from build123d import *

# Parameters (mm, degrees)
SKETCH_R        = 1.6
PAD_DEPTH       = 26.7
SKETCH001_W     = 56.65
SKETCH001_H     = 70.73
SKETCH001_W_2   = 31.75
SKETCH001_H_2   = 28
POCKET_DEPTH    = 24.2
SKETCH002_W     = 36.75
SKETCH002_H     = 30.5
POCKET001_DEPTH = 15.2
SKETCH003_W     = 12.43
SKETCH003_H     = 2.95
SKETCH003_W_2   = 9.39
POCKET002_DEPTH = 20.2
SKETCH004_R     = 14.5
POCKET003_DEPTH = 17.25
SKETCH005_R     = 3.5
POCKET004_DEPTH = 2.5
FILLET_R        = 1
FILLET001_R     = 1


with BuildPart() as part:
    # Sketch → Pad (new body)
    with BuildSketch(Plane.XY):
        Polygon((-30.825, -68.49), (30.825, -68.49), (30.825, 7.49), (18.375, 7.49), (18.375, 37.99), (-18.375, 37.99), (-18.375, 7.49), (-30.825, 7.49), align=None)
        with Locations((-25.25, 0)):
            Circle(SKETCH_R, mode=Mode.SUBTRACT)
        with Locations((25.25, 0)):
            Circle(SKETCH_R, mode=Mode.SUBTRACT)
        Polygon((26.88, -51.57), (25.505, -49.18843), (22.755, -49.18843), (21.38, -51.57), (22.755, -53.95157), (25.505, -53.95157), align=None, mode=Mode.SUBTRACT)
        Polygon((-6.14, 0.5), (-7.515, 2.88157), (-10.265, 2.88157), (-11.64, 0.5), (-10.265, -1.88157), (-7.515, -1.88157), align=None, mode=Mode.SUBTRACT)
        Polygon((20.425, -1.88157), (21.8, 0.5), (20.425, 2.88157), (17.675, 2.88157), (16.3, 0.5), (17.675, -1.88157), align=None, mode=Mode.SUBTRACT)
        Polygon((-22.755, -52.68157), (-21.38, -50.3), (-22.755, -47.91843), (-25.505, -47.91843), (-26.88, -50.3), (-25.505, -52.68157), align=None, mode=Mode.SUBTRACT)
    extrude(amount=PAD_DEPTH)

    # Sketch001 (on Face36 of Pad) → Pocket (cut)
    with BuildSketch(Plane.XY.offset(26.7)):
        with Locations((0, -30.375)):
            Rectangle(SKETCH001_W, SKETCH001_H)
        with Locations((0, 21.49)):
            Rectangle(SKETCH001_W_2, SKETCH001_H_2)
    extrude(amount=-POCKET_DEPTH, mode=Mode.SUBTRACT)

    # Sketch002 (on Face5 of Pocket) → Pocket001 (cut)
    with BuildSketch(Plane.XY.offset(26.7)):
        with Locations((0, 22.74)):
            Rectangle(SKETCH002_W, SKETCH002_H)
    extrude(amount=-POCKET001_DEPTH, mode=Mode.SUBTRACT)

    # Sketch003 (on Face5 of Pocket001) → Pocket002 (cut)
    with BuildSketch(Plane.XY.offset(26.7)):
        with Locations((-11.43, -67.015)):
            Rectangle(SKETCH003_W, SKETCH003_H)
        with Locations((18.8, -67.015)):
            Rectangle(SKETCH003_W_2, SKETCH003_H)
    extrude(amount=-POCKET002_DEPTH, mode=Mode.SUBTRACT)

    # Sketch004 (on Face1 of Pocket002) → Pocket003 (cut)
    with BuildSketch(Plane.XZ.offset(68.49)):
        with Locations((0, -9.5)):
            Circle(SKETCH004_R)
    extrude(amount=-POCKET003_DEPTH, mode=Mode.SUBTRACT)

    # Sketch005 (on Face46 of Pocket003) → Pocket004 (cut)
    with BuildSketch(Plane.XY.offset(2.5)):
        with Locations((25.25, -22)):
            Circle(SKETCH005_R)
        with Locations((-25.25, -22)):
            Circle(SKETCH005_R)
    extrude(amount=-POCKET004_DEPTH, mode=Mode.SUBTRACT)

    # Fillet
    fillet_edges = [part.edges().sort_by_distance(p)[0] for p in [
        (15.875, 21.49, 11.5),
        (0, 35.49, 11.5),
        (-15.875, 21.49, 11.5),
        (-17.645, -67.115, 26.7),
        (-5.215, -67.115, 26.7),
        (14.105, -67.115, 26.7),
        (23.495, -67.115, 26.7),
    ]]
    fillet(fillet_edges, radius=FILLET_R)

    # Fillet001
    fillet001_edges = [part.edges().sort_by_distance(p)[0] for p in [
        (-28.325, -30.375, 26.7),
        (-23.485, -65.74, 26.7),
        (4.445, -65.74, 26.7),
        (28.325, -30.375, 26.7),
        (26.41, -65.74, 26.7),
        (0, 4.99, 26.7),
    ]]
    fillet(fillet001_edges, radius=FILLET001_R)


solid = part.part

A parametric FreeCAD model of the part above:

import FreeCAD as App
import Part
import Sketcher

V = App.Vector
Q = App.Units.Quantity


def edges_at(feature, points):
    """Names of the edges that pass closest to the given points."""
    edges = feature.Shape.Edges
    near = lambda p: min(range(len(edges)), key=lambda i: edges[i].distToShape(Part.Vertex(*p))[0])
    return sorted({f"Edge{near(p) + 1}" for p in points})

doc = App.newDocument("Part")
params = doc.addObject("Spreadsheet::Sheet", "Params")
for row, (alias, value) in enumerate([
    ("sketch1_diameter", "3.2 mm"),
    ("sketch1_height", "30.5 mm"),
    ("sketch1_width", "61.65 mm"),
    ("sketch1_width2", "12.45 mm"),
    ("sketch1_width3", "2.75 mm"),
    ("pad1_length", "26.7 mm"),
    ("sketch2_height", "28 mm"),
    ("sketch2_width", "56.65 mm"),
    ("sketch2_width2", "31.75 mm"),
    ("sketch2_height2", "70.73 mm"),
    ("pocket1_length", "24.2 mm"),
    ("sketch3_height", "30.5 mm"),
    ("sketch3_width", "36.75 mm"),
    ("pocket2_length", "15.2 mm"),
    ("sketch4_width", "12.43 mm"),
    ("sketch4_width2", "9.39 mm"),
    ("sketch4_height", "2.95 mm"),
    ("pocket3_length", "20.2 mm"),
    ("sketch5_diameter", "29 mm"),
    ("pocket4_length", "17.25 mm"),
    ("sketch6_diameter", "7 mm"),
    ("pocket5_length", "2.5 mm"),
    ("fillet_radius", "1 mm"),
    ("fillet2_radius", "1 mm"),
], start=1):
    params.set(f"A{row}", alias)
    params.set(f"B{row}", "=" + value)
    params.setAlias(f"B{row}", alias)

body = doc.addObject("PartDesign::Body", "Body")

# Sketch on XY plane
sketch1 = body.newObject("Sketcher::SketchObject", "Sketch")
sketch1.AttachmentSupport = (doc.getObject("XY_Plane"), [""])
sketch1.MapMode = "FlatFace"
sketch1.addGeometry(Part.LineSegment(V(-30.8, -68.5, 0), V(30.8, -68.5, 0)), False)
sketch1.addGeometry(Part.LineSegment(V(30.8, -68.5, 0), V(30.8, 7.5, 0)), False)
sketch1.addGeometry(Part.LineSegment(V(30.8, 7.5, 0), V(18.4, 7.5, 0)), False)
sketch1.addGeometry(Part.LineSegment(V(18.4, 7.5, 0), V(18.4, 38, 0)), False)
sketch1.addGeometry(Part.LineSegment(V(18.4, 38, 0), V(-18.4, 38, 0)), False)
sketch1.addGeometry(Part.LineSegment(V(-18.4, 38, 0), V(-18.4, 7.5, 0)), False)
sketch1.addGeometry(Part.LineSegment(V(-18.4, 7.5, 0), V(-30.8, 7.5, 0)), False)
sketch1.addGeometry(Part.LineSegment(V(-30.8, 7.5, 0), V(-30.8, -68.5, 0)), False)
sketch1.addGeometry(Part.LineSegment(V(-21.4, -50.3, 0), V(-22.8, -52.7, 0)), False)
sketch1.addGeometry(Part.LineSegment(V(-22.8, -52.7, 0), V(-25.5, -52.7, 0)), False)
sketch1.addGeometry(Part.LineSegment(V(-25.5, -52.7, 0), V(-26.9, -50.3, 0)), False)
sketch1.addGeometry(Part.LineSegment(V(-26.9, -50.3, 0), V(-25.5, -47.9, 0)), False)
sketch1.addGeometry(Part.LineSegment(V(-25.5, -47.9, 0), V(-22.8, -47.9, 0)), False)
sketch1.addGeometry(Part.LineSegment(V(-22.8, -47.9, 0), V(-21.4, -50.3, 0)), False)
sketch1.addGeometry(Part.LineSegment(V(25.5, -49.2, 0), V(26.9, -51.6, 0)), False)
sketch1.addGeometry(Part.LineSegment(V(26.9, -51.6, 0), V(25.5, -54, 0)), False)
sketch1.addGeometry(Part.LineSegment(V(25.5, -54, 0), V(22.8, -54, 0)), False)
sketch1.addGeometry(Part.LineSegment(V(22.8, -54, 0), V(21.4, -51.6, 0)), False)
sketch1.addGeometry(Part.LineSegment(V(21.4, -51.6, 0), V(22.8, -49.2, 0)), False)
sketch1.addGeometry(Part.LineSegment(V(22.8, -49.2, 0), V(25.5, -49.2, 0)), False)
sketch1.addGeometry(Part.Circle(V(-25.2, 0, 0), V(0, 0, 1), 1.6), False)
sketch1.addGeometry(Part.LineSegment(V(-7.5, 2.9, 0), V(-6.1, 0.5, 0)), False)
sketch1.addGeometry(Part.LineSegment(V(-6.1, 0.5, 0), V(-7.5, -1.9, 0)), False)
sketch1.addGeometry(Part.LineSegment(V(-7.5, -1.9, 0), V(-10.3, -1.9, 0)), False)
sketch1.addGeometry(Part.LineSegment(V(-10.3, -1.9, 0), V(-11.6, 0.5, 0)), False)
sketch1.addGeometry(Part.LineSegment(V(-11.6, 0.5, 0), V(-10.3, 2.9, 0)), False)
sketch1.addGeometry(Part.LineSegment(V(-10.3, 2.9, 0), V(-7.5, 2.9, 0)), False)
sketch1.addGeometry(Part.LineSegment(V(21.8, 0.5, 0), V(20.4, -1.9, 0)), False)
sketch1.addGeometry(Part.LineSegment(V(20.4, -1.9, 0), V(17.7, -1.9, 0)), False)
sketch1.addGeometry(Part.LineSegment(V(17.7, -1.9, 0), V(16.3, 0.5, 0)), False)
sketch1.addGeometry(Part.LineSegment(V(16.3, 0.5, 0), V(17.7, 2.9, 0)), False)
sketch1.addGeometry(Part.LineSegment(V(17.7, 2.9, 0), V(20.4, 2.9, 0)), False)
sketch1.addGeometry(Part.LineSegment(V(20.4, 2.9, 0), V(21.8, 0.5, 0)), False)
sketch1.addGeometry(Part.Circle(V(25.2, 0, 0), V(0, 0, 1), 1.6), False)
sketch1.addConstraint(Sketcher.Constraint("Coincident", 0, 2, 1, 1))
sketch1.addConstraint(Sketcher.Constraint("Coincident", 1, 2, 2, 1))
sketch1.addConstraint(Sketcher.Constraint("Coincident", 2, 2, 3, 1))
sketch1.addConstraint(Sketcher.Constraint("Coincident", 3, 2, 4, 1))
sketch1.addConstraint(Sketcher.Constraint("Coincident", 4, 2, 5, 1))
sketch1.addConstraint(Sketcher.Constraint("Coincident", 5, 2, 6, 1))
sketch1.addConstraint(Sketcher.Constraint("Coincident", 6, 2, 7, 1))
sketch1.addConstraint(Sketcher.Constraint("Coincident", 7, 2, 0, 1))
sketch1.addConstraint(Sketcher.Constraint("Coincident", 8, 2, 9, 1))
sketch1.addConstraint(Sketcher.Constraint("Coincident", 9, 2, 10, 1))
sketch1.addConstraint(Sketcher.Constraint("Coincident", 10, 2, 11, 1))
sketch1.addConstraint(Sketcher.Constraint("Coincident", 11, 2, 12, 1))
sketch1.addConstraint(Sketcher.Constraint("Coincident", 12, 2, 13, 1))
sketch1.addConstraint(Sketcher.Constraint("Coincident", 13, 2, 8, 1))
sketch1.addConstraint(Sketcher.Constraint("Coincident", 14, 2, 15, 1))
sketch1.addConstraint(Sketcher.Constraint("Coincident", 15, 2, 16, 1))
sketch1.addConstraint(Sketcher.Constraint("Coincident", 16, 2, 17, 1))
sketch1.addConstraint(Sketcher.Constraint("Coincident", 17, 2, 18, 1))
sketch1.addConstraint(Sketcher.Constraint("Coincident", 18, 2, 19, 1))
sketch1.addConstraint(Sketcher.Constraint("Coincident", 19, 2, 14, 1))
sketch1.addConstraint(Sketcher.Constraint("Coincident", 21, 2, 22, 1))
sketch1.addConstraint(Sketcher.Constraint("Coincident", 22, 2, 23, 1))
sketch1.addConstraint(Sketcher.Constraint("Coincident", 23, 2, 24, 1))
sketch1.addConstraint(Sketcher.Constraint("Coincident", 24, 2, 25, 1))
sketch1.addConstraint(Sketcher.Constraint("Coincident", 25, 2, 26, 1))
sketch1.addConstraint(Sketcher.Constraint("Coincident", 26, 2, 21, 1))
sketch1.addConstraint(Sketcher.Constraint("Coincident", 27, 2, 28, 1))
sketch1.addConstraint(Sketcher.Constraint("Coincident", 28, 2, 29, 1))
sketch1.addConstraint(Sketcher.Constraint("Coincident", 29, 2, 30, 1))
sketch1.addConstraint(Sketcher.Constraint("Coincident", 30, 2, 31, 1))
sketch1.addConstraint(Sketcher.Constraint("Coincident", 31, 2, 32, 1))
sketch1.addConstraint(Sketcher.Constraint("Coincident", 32, 2, 27, 1))
sketch1.addConstraint(Sketcher.Constraint("Horizontal", 0))
sketch1.addConstraint(Sketcher.Constraint("Vertical", 1))
sketch1.addConstraint(Sketcher.Constraint("Horizontal", 2))
sketch1.addConstraint(Sketcher.Constraint("Vertical", 3))
sketch1.addConstraint(Sketcher.Constraint("Horizontal", 4))
sketch1.addConstraint(Sketcher.Constraint("Vertical", 5))
sketch1.addConstraint(Sketcher.Constraint("Horizontal", 6))
sketch1.addConstraint(Sketcher.Constraint("Vertical", 7))
sketch1.addConstraint(Sketcher.Constraint("Horizontal", 9))
sketch1.addConstraint(Sketcher.Constraint("Horizontal", 12))
sketch1.addConstraint(Sketcher.Constraint("Horizontal", 16))
sketch1.addConstraint(Sketcher.Constraint("Horizontal", 19))
sketch1.addConstraint(Sketcher.Constraint("Horizontal", 23))
sketch1.addConstraint(Sketcher.Constraint("Horizontal", 26))
sketch1.addConstraint(Sketcher.Constraint("Horizontal", 28))
sketch1.addConstraint(Sketcher.Constraint("Horizontal", 31))
sketch1.addConstraint(Sketcher.Constraint("Equal", 20, 33))
sketch1.addConstraint(Sketcher.Constraint("Symmetric", 20, 3, 33, 3, -1, 1))
sketch1.addConstraint(Sketcher.Constraint("Symmetric", 2, 2, 5, 2, -2))
sketch1.addConstraint(Sketcher.Constraint("PointOnObject", 20, 3, -1))
sketch1.addConstraint(Sketcher.Constraint("Parallel", 8, 11))
sketch1.addConstraint(Sketcher.Constraint("Parallel", 10, 13))
sketch1.addConstraint(Sketcher.Constraint("Parallel", 13, 14))
sketch1.addConstraint(Sketcher.Constraint("Parallel", 11, 15))
sketch1.addConstraint(Sketcher.Constraint("Parallel", 14, 17))
sketch1.addConstraint(Sketcher.Constraint("Parallel", 15, 18))
sketch1.addConstraint(Sketcher.Constraint("Parallel", 17, 21))
sketch1.addConstraint(Sketcher.Constraint("Parallel", 18, 22))
sketch1.addConstraint(Sketcher.Constraint("Parallel", 21, 24))
sketch1.addConstraint(Sketcher.Constraint("Parallel", 22, 25))
sketch1.addConstraint(Sketcher.Constraint("Parallel", 25, 27))
sketch1.addConstraint(Sketcher.Constraint("Parallel", 24, 29))
sketch1.addConstraint(Sketcher.Constraint("Parallel", 27, 30))
sketch1.addConstraint(Sketcher.Constraint("Parallel", 29, 32))
sketch1.addConstraint(Sketcher.Constraint("Horizontal", 10, 2, 13, 2))
sketch1.addConstraint(Sketcher.Constraint("Horizontal", 14, 2, 17, 2))
sketch1.addConstraint(Sketcher.Constraint("Horizontal", 21, 2, 24, 2))
sketch1.addConstraint(Sketcher.Constraint("Horizontal", 23, 2, 27, 2))
sketch1.addConstraint(Sketcher.Constraint("Horizontal", 24, 2, 29, 2))
sketch1.addConstraint(Sketcher.Constraint("Horizontal", 26, 2, 30, 2))
sketch1.addConstraint(Sketcher.Constraint("Horizontal", 29, 2, 32, 2))
sketch1.addConstraint(Sketcher.Constraint("Vertical", 9, 2, 11, 2))
sketch1.addConstraint(Sketcher.Constraint("Vertical", 8, 2, 12, 2))
sketch1.addConstraint(Sketcher.Constraint("Vertical", 16, 2, 18, 2))
sketch1.addConstraint(Sketcher.Constraint("Vertical", 23, 2, 25, 2))
sketch1.addConstraint(Sketcher.Constraint("Equal", 2, 6))
sketch1.addConstraint(Sketcher.Constraint("Equal", 12, 16))
sketch1.addConstraint(Sketcher.Constraint("Equal", 19, 23))
sketch1.addConstraint(Sketcher.Constraint("Equal", 26, 28))
sketch1.addConstraint(Sketcher.Constraint("Equal", 13, 14))
sketch1.addConstraint(Sketcher.Constraint("Equal", 18, 21))
sketch1.addConstraint(Sketcher.Constraint("Diameter", 20, 3.2))
sketch1.addConstraint(Sketcher.Constraint("Angle", 8, Q("-119.999999 deg")))
sketch1.addConstraint(Sketcher.Constraint("DistanceY", 3, 1, 3, 2, 30.5))
sketch1.addConstraint(Sketcher.Constraint("DistanceX", 0, 1, 0, 2, 61.65))
sketch1.addConstraint(Sketcher.Constraint("DistanceX", 2, 2, 2, 1, 12.45))
sketch1.addConstraint(Sketcher.Constraint("DistanceX", 9, 2, 9, 1, 2.75))
sketch1.addConstraint(Sketcher.Constraint("DistanceY", 1, 1, 1, 2, 75.98))
sketch1.addConstraint(Sketcher.Constraint("DistanceY", 10, 2, -1, 1, 50.3))
sketch1.addConstraint(Sketcher.Constraint("DistanceY", -1, 1, 21, 2, 0.5))
sketch1.addConstraint(Sketcher.Constraint("DistanceX", -1, 1, 29, 2, 16.3))
sketch1.addConstraint(Sketcher.Constraint("DistanceX", -1, 1, 32, 2, 21.8))
sketch1.addConstraint(Sketcher.Constraint("DistanceX", 20, 3, 33, 3, 50.5))
sketch1.addConstraint(Sketcher.Constraint("DistanceY", 0, 2, -1, 1, 68.49))
sketch1.addConstraint(Sketcher.Constraint("DistanceX", 10, 2, -1, 1, 26.88))
sketch1.addConstraint(Sketcher.Constraint("DistanceX", -1, 1, 14, 2, 26.88))
sketch1.addConstraint(Sketcher.Constraint("DistanceY", 14, 2, -1, 1, 51.57))
sketch1.addConstraint(Sketcher.Constraint("DistanceX", 21, 2, -1, 1, 6.14))
sketch1.setExpression("Constraints[83]", "Params.sketch1_diameter")
sketch1.setExpression("Constraints[85]", "Params.sketch1_height")
sketch1.setExpression("Constraints[86]", "Params.sketch1_width")
sketch1.setExpression("Constraints[87]", "Params.sketch1_width2")
sketch1.setExpression("Constraints[88]", "Params.sketch1_width3")
pad1 = body.newObject("PartDesign::Pad", "Pad")
pad1.Profile = sketch1
pad1.setExpression("Length", "Params.pad1_length")

# Sketch on XY plane
sketch2 = body.newObject("Sketcher::SketchObject", "Sketch001")
sketch2.AttachmentSupport = (doc.getObject("XY_Plane"), [""])
sketch2.MapMode = "FlatFace"
sketch2.AttachmentOffset = App.Placement(V(0, 0, 26.7), App.Rotation())
sketch2.addGeometry(Part.LineSegment(V(-28, 5, 0), V(-28, -66, 0)), False)
sketch2.addGeometry(Part.LineSegment(V(-28, -66, 0), V(28, -66, 0)), False)
sketch2.addGeometry(Part.LineSegment(V(28, -66, 0), V(28, 5, 0)), False)
sketch2.addGeometry(Part.LineSegment(V(28, 5, 0), V(-28, 5, 0)), False)
sketch2.addGeometry(Part.LineSegment(V(-16, 35, 0), V(-16, 7, 0)), False)
sketch2.addGeometry(Part.LineSegment(V(-16, 7, 0), V(16, 7, 0)), False)
sketch2.addGeometry(Part.LineSegment(V(16, 7, 0), V(16, 35, 0)), False)
sketch2.addGeometry(Part.LineSegment(V(16, 35, 0), V(-16, 35, 0)), False)
sketch2.addConstraint(Sketcher.Constraint("Coincident", 0, 2, 1, 1))
sketch2.addConstraint(Sketcher.Constraint("Coincident", 1, 2, 2, 1))
sketch2.addConstraint(Sketcher.Constraint("Coincident", 2, 2, 3, 1))
sketch2.addConstraint(Sketcher.Constraint("Coincident", 3, 2, 0, 1))
sketch2.addConstraint(Sketcher.Constraint("Coincident", 4, 2, 5, 1))
sketch2.addConstraint(Sketcher.Constraint("Coincident", 5, 2, 6, 1))
sketch2.addConstraint(Sketcher.Constraint("Coincident", 6, 2, 7, 1))
sketch2.addConstraint(Sketcher.Constraint("Coincident", 7, 2, 4, 1))
sketch2.addConstraint(Sketcher.Constraint("Vertical", 0))
sketch2.addConstraint(Sketcher.Constraint("Horizontal", 1))
sketch2.addConstraint(Sketcher.Constraint("Vertical", 2))
sketch2.addConstraint(Sketcher.Constraint("Horizontal", 3))
sketch2.addConstraint(Sketcher.Constraint("Vertical", 4))
sketch2.addConstraint(Sketcher.Constraint("Horizontal", 5))
sketch2.addConstraint(Sketcher.Constraint("Vertical", 6))
sketch2.addConstraint(Sketcher.Constraint("Horizontal", 7))
sketch2.addConstraint(Sketcher.Constraint("DistanceY", 4, 2, 4, 1, 28.0))
sketch2.addConstraint(Sketcher.Constraint("DistanceX", 1, 1, 1, 2, 56.65))
sketch2.addConstraint(Sketcher.Constraint("DistanceX", 5, 1, 5, 2, 31.75))
sketch2.addConstraint(Sketcher.Constraint("DistanceY", 0, 2, 0, 1, 70.73))
sketch2.addConstraint(Sketcher.Constraint("DistanceY", 3, 2, 4, 2, 2.5))
sketch2.addConstraint(Sketcher.Constraint("DistanceX", 4, 2, 2, 2, 44.2))
sketch2.addConstraint(Sketcher.Constraint("DistanceY", 0, 2, -1, 1, 65.74))
sketch2.addConstraint(Sketcher.Constraint("DistanceX", 0, 2, -1, 1, 28.325))
sketch2.setExpression("Constraints[16]", "Params.sketch2_height")
sketch2.setExpression("Constraints[17]", "Params.sketch2_width")
sketch2.setExpression("Constraints[18]", "Params.sketch2_width2")
sketch2.setExpression("Constraints[19]", "Params.sketch2_height2")
pocket1 = body.newObject("PartDesign::Pocket", "Pocket")
pocket1.Profile = sketch2
pocket1.setExpression("Length", "Params.pocket1_length")

# Sketch on XY plane
sketch3 = body.newObject("Sketcher::SketchObject", "Sketch002")
sketch3.AttachmentSupport = (doc.getObject("XY_Plane"), [""])
sketch3.MapMode = "FlatFace"
sketch3.AttachmentOffset = App.Placement(V(0, 0, 26.7), App.Rotation())
sketch3.addGeometry(Part.LineSegment(V(-18, 38, 0), V(-18, 7, 0)), False)
sketch3.addGeometry(Part.LineSegment(V(-18, 7, 0), V(18, 7, 0)), False)
sketch3.addGeometry(Part.LineSegment(V(18, 7, 0), V(18, 38, 0)), False)
sketch3.addGeometry(Part.LineSegment(V(18, 38, 0), V(-18, 38, 0)), False)
sketch3.addConstraint(Sketcher.Constraint("Coincident", 0, 2, 1, 1))
sketch3.addConstraint(Sketcher.Constraint("Coincident", 1, 2, 2, 1))
sketch3.addConstraint(Sketcher.Constraint("Coincident", 2, 2, 3, 1))
sketch3.addConstraint(Sketcher.Constraint("Coincident", 3, 2, 0, 1))
sketch3.addConstraint(Sketcher.Constraint("Vertical", 0))
sketch3.addConstraint(Sketcher.Constraint("Horizontal", 1))
sketch3.addConstraint(Sketcher.Constraint("Vertical", 2))
sketch3.addConstraint(Sketcher.Constraint("Horizontal", 3))
sketch3.addConstraint(Sketcher.Constraint("DistanceY", 0, 2, 0, 1, 30.5))
sketch3.addConstraint(Sketcher.Constraint("DistanceX", 1, 1, 1, 2, 36.75))
sketch3.addConstraint(Sketcher.Constraint("DistanceY", -1, 1, 0, 2, 7.49))
sketch3.addConstraint(Sketcher.Constraint("DistanceX", 0, 2, -1, 1, 18.375))
sketch3.setExpression("Constraints[8]", "Params.sketch3_height")
sketch3.setExpression("Constraints[9]", "Params.sketch3_width")
pocket2 = body.newObject("PartDesign::Pocket", "Pocket001")
pocket2.Profile = sketch3
pocket2.setExpression("Length", "Params.pocket2_length")

# Sketch on XY plane
sketch4 = body.newObject("Sketcher::SketchObject", "Sketch003")
sketch4.AttachmentSupport = (doc.getObject("XY_Plane"), [""])
sketch4.MapMode = "FlatFace"
sketch4.AttachmentOffset = App.Placement(V(0, 0, 26.7), App.Rotation())
sketch4.addGeometry(Part.LineSegment(V(-17.6, -65.5, 0), V(-17.6, -68.5, 0)), False)
sketch4.addGeometry(Part.LineSegment(V(-17.6, -68.5, 0), V(-5.2, -68.5, 0)), False)
sketch4.addGeometry(Part.LineSegment(V(-5.2, -68.5, 0), V(-5.2, -65.5, 0)), False)
sketch4.addGeometry(Part.LineSegment(V(-5.2, -65.5, 0), V(-17.6, -65.5, 0)), False)
sketch4.addGeometry(Part.LineSegment(V(14.1, -65.5, 0), V(14.1, -68.5, 0)), False)
sketch4.addGeometry(Part.LineSegment(V(14.1, -68.5, 0), V(23.5, -68.5, 0)), False)
sketch4.addGeometry(Part.LineSegment(V(23.5, -68.5, 0), V(23.5, -65.5, 0)), False)
sketch4.addGeometry(Part.LineSegment(V(23.5, -65.5, 0), V(14.1, -65.5, 0)), False)
sketch4.addConstraint(Sketcher.Constraint("Coincident", 0, 2, 1, 1))
sketch4.addConstraint(Sketcher.Constraint("Coincident", 1, 2, 2, 1))
sketch4.addConstraint(Sketcher.Constraint("Coincident", 2, 2, 3, 1))
sketch4.addConstraint(Sketcher.Constraint("Coincident", 3, 2, 0, 1))
sketch4.addConstraint(Sketcher.Constraint("Coincident", 4, 2, 5, 1))
sketch4.addConstraint(Sketcher.Constraint("Coincident", 5, 2, 6, 1))
sketch4.addConstraint(Sketcher.Constraint("Coincident", 6, 2, 7, 1))
sketch4.addConstraint(Sketcher.Constraint("Coincident", 7, 2, 4, 1))
sketch4.addConstraint(Sketcher.Constraint("Vertical", 0))
sketch4.addConstraint(Sketcher.Constraint("Horizontal", 1))
sketch4.addConstraint(Sketcher.Constraint("Vertical", 2))
sketch4.addConstraint(Sketcher.Constraint("Horizontal", 3))
sketch4.addConstraint(Sketcher.Constraint("Vertical", 4))
sketch4.addConstraint(Sketcher.Constraint("Horizontal", 5))
sketch4.addConstraint(Sketcher.Constraint("Vertical", 6))
sketch4.addConstraint(Sketcher.Constraint("Horizontal", 7))
sketch4.addConstraint(Sketcher.Constraint("Horizontal", 1, 2, 4, 2))
sketch4.addConstraint(Sketcher.Constraint("Horizontal", 3, 2, 6, 2))
sketch4.addConstraint(Sketcher.Constraint("DistanceX", 1, 1, 1, 2, 12.43))
sketch4.addConstraint(Sketcher.Constraint("DistanceX", 5, 1, 5, 2, 9.39))
sketch4.addConstraint(Sketcher.Constraint("DistanceY", 0, 2, 0, 1, 2.95))
sketch4.addConstraint(Sketcher.Constraint("DistanceY", 0, 2, -1, 1, 68.49))
sketch4.addConstraint(Sketcher.Constraint("DistanceX", 1, 2, 4, 2, 19.32))
sketch4.addConstraint(Sketcher.Constraint("DistanceX", 0, 2, -1, 1, 17.645))
sketch4.setExpression("Constraints[18]", "Params.sketch4_width")
sketch4.setExpression("Constraints[19]", "Params.sketch4_width2")
sketch4.setExpression("Constraints[20]", "Params.sketch4_height")
pocket3 = body.newObject("PartDesign::Pocket", "Pocket002")
pocket3.Profile = sketch4
pocket3.setExpression("Length", "Params.pocket3_length")

# Sketch on XZ plane
sketch5 = body.newObject("Sketcher::SketchObject", "Sketch004")
sketch5.AttachmentSupport = (doc.getObject("XZ_Plane"), [""])
sketch5.MapMode = "FlatFace"
sketch5.AttachmentOffset = App.Placement(V(0, 0, 68.49), App.Rotation())
sketch5.addGeometry(Part.Circle(V(0, -10, 0), V(0, 0, 1), 14), False)
sketch5.addConstraint(Sketcher.Constraint("PointOnObject", 0, 3, -2))
sketch5.addConstraint(Sketcher.Constraint("Diameter", 0, 29.0))
sketch5.addConstraint(Sketcher.Constraint("DistanceY", 0, 3, -1, 1, 9.5))
sketch5.setExpression("Constraints[1]", "Params.sketch5_diameter")
pocket4 = body.newObject("PartDesign::Pocket", "Pocket003")
pocket4.Profile = sketch5
pocket4.setExpression("Length", "Params.pocket4_length")

# Sketch on XY plane
sketch6 = body.newObject("Sketcher::SketchObject", "Sketch005")
sketch6.AttachmentSupport = (doc.getObject("XY_Plane"), [""])
sketch6.MapMode = "FlatFace"
sketch6.AttachmentOffset = App.Placement(V(0, 0, 2.5), App.Rotation())
sketch6.addGeometry(Part.Circle(V(25.2, -22, 0), V(0, 0, 1), 3.5), False)
sketch6.addGeometry(Part.Circle(V(-25.2, -22, 0), V(0, 0, 1), 3.5), False)
sketch6.addConstraint(Sketcher.Constraint("Equal", 0, 1))
sketch6.addConstraint(Sketcher.Constraint("Symmetric", 0, 3, 1, 3, -2))
sketch6.addConstraint(Sketcher.Constraint("Diameter", 0, 7.0))
sketch6.addConstraint(Sketcher.Constraint("DistanceY", 0, 3, -1, 1, 22.0))
sketch6.addConstraint(Sketcher.Constraint("DistanceX", 1, 3, 0, 3, 50.5))
sketch6.setExpression("Constraints[2]", "Params.sketch6_diameter")
pocket5 = body.newObject("PartDesign::Pocket", "Pocket004")
pocket5.Profile = sketch6
pocket5.setExpression("Length", "Params.pocket5_length")
doc.recompute()

fillet = body.newObject("PartDesign::Fillet", "Fillet")
fillet.Base = (pocket5, edges_at(pocket5, [
    (15.875, 21.49, 11.5),
    (0, 35.49, 11.5),
    (-15.875, 21.49, 11.5),
    (-17.645, -67.115, 26.7),
    (-5.215, -67.115, 26.7),
    (14.105, -67.115, 26.7),
    (23.495, -67.115, 26.7),
]))
fillet.setExpression("Radius", "Params.fillet_radius")
doc.recompute()

fillet2 = body.newObject("PartDesign::Fillet", "Fillet001")
fillet2.Base = (fillet, edges_at(fillet, [
    (-28.325, -30.375, 26.7),
    (-23.485, -65.74, 26.7),
    (4.445, -65.74, 26.7),
    (28.325, -30.375, 26.7),
    (26.41, -65.74, 26.7),
    (0, 4.99, 26.7),
]))
fillet2.setExpression("Radius", "Params.fillet2_radius")

doc.recompute()
